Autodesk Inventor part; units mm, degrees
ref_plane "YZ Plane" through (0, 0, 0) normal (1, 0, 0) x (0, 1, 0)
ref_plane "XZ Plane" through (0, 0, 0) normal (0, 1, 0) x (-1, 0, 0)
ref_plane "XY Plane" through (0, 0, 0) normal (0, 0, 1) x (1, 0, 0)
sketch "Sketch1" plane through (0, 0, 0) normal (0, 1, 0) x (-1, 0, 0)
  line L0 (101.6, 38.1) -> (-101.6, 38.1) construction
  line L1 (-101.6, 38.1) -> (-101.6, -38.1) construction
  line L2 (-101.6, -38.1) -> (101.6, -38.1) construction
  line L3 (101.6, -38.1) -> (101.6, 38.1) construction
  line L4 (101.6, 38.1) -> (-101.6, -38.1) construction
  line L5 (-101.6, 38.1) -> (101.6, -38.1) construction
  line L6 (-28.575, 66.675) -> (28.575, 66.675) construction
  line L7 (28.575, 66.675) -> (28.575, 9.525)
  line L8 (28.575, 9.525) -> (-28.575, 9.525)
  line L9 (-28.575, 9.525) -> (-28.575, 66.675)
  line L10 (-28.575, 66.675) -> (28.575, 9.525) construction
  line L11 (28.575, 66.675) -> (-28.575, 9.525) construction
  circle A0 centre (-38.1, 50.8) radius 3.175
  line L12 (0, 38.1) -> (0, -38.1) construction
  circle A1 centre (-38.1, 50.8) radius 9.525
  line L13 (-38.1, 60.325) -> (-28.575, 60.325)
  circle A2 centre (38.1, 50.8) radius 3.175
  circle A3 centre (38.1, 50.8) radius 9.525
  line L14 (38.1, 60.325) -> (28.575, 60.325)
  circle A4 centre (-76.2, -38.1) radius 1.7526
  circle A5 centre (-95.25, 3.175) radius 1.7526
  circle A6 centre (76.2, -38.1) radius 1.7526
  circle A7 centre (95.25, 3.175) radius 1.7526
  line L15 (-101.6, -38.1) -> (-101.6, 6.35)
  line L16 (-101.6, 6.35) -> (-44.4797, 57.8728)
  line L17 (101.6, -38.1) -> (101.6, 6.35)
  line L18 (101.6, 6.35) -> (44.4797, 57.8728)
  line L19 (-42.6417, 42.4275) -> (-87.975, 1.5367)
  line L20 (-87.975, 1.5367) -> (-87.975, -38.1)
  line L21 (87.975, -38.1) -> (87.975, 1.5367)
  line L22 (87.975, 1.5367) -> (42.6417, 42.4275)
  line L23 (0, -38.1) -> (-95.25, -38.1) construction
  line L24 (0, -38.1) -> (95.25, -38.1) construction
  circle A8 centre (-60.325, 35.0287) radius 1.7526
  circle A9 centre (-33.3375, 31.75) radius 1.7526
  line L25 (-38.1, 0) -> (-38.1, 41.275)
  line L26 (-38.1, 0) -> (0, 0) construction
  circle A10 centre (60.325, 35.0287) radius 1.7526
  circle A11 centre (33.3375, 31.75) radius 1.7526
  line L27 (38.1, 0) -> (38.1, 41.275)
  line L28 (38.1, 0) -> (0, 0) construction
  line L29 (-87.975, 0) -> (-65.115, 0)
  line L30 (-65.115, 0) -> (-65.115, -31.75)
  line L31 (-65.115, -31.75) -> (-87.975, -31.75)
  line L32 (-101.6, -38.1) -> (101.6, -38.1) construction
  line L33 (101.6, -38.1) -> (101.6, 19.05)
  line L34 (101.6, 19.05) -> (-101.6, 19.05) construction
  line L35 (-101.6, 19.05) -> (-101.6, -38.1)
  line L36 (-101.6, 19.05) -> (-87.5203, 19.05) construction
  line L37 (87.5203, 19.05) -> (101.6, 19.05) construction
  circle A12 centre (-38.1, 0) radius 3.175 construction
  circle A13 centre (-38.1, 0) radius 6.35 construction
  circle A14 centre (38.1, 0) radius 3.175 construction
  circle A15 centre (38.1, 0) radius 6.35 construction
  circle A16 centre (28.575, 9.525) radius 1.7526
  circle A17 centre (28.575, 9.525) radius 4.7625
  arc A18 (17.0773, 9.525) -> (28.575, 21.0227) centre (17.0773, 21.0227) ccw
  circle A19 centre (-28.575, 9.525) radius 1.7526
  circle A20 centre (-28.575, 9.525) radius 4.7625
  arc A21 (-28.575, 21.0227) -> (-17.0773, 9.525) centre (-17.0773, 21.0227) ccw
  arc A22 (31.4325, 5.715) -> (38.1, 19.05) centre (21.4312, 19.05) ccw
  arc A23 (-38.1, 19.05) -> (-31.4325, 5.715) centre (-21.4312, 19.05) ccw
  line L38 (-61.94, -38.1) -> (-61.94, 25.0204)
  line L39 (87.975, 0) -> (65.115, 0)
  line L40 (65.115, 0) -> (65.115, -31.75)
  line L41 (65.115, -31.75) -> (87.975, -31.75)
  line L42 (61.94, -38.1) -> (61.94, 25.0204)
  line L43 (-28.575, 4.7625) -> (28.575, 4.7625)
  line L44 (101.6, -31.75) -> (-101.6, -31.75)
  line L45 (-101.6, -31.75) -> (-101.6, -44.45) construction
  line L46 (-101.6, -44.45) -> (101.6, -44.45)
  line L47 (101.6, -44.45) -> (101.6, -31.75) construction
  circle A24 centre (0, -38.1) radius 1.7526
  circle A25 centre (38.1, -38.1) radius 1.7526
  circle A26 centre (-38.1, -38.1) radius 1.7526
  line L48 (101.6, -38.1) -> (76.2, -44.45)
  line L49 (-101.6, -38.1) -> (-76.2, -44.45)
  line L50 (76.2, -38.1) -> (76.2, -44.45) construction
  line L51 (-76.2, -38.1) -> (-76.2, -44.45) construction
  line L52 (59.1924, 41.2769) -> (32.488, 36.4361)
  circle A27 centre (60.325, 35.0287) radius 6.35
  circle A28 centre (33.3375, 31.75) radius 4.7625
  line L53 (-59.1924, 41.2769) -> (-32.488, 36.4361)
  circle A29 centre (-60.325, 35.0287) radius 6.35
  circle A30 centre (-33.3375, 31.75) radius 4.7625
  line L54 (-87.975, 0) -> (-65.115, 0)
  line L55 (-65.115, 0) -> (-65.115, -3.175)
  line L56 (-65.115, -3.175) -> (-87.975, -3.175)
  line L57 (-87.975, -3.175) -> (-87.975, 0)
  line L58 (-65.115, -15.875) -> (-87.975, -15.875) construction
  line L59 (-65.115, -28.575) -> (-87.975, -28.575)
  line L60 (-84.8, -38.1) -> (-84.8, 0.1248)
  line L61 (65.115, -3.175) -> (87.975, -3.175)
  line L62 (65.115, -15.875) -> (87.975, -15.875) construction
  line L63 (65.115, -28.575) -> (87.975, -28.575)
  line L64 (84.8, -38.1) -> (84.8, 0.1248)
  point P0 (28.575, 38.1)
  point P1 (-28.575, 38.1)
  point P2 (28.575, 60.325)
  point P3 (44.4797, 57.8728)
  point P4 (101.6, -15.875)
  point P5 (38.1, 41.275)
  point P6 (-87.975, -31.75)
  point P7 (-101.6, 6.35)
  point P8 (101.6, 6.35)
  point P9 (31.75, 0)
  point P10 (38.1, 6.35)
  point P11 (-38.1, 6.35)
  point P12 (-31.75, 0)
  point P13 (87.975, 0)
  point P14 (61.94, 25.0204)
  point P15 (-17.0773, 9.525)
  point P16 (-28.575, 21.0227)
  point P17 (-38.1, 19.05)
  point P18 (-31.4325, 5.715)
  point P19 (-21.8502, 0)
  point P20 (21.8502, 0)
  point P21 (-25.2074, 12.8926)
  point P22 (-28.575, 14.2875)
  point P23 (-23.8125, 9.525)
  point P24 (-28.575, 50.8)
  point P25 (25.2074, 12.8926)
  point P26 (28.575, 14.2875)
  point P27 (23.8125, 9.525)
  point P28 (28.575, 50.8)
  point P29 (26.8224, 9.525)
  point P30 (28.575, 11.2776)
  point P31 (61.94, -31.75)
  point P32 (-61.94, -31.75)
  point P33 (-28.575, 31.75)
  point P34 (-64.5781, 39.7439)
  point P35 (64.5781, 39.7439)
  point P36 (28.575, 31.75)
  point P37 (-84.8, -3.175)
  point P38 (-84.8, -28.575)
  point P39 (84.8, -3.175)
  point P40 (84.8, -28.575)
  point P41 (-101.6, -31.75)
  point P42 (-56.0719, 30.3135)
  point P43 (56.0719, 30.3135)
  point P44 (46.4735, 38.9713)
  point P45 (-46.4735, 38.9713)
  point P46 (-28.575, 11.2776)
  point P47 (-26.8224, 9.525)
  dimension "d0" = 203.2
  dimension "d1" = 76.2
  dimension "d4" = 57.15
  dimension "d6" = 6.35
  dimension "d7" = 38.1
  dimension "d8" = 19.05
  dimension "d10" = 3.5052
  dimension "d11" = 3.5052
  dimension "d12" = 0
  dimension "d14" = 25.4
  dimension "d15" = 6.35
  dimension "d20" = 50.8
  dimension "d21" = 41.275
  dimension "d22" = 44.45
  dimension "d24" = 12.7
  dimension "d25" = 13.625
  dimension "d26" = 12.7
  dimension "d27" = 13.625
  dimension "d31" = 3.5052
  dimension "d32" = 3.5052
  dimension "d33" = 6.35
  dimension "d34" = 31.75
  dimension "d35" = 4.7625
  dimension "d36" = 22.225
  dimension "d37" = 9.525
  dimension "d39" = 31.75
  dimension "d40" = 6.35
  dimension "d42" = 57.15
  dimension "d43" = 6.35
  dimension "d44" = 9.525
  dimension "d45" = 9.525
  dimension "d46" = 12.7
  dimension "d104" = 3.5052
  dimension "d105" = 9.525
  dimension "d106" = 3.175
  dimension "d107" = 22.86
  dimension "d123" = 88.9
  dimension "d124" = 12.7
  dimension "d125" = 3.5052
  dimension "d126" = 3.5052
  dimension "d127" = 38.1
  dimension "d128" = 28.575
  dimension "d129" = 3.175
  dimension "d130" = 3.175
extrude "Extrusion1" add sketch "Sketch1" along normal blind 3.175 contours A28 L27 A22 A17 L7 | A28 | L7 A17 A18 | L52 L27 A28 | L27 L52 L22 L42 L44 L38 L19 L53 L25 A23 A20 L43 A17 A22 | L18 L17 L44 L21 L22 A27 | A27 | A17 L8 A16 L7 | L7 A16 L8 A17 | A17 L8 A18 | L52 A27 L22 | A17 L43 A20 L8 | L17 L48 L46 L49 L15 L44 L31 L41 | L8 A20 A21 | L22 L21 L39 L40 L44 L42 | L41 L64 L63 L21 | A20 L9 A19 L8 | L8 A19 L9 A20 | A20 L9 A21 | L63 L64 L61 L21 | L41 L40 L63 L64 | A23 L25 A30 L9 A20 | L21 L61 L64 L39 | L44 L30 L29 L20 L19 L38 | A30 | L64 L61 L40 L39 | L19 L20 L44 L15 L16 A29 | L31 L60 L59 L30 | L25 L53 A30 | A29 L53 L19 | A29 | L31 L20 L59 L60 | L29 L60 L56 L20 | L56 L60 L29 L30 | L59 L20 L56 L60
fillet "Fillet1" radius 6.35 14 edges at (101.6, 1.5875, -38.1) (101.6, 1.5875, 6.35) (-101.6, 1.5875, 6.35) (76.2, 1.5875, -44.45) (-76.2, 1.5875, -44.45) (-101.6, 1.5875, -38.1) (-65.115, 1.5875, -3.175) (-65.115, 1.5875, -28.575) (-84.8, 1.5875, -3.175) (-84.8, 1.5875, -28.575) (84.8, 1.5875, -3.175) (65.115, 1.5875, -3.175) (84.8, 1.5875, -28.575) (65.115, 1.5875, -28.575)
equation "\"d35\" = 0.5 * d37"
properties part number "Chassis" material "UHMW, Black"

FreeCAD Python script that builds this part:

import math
import FreeCAD as App
import Part
import Sketcher

V = App.Vector
Q = App.Units.Quantity


def edges_at(feature, points):
    """Names of the edges that pass closest to the given points."""
    edges = feature.Shape.Edges
    near = lambda p: min(range(len(edges)), key=lambda i: edges[i].distToShape(Part.Vertex(*p))[0])
    return sorted({f"Edge{near(p) + 1}" for p in points})


def add_polygon(sketch, points):
    """Adds a closed chain of lines whose ends are joined by coincident constraints."""
    first, n = sketch.GeometryCount, len(points)
    for a, b in zip(points, points[1:] + points[:1]):
        sketch.addGeometry(Part.LineSegment(App.Vector(*a, 0), App.Vector(*b, 0)), False)
    for i in range(n):
        sketch.addConstraint(Sketcher.Constraint("Coincident", first + i, 2, first + (i + 1) % n, 1))

doc = App.newDocument("Part")
body = doc.addObject("PartDesign::Body", "Body")

# Sketch on XZ plane
sketch1 = body.newObject("Sketcher::SketchObject", "Sketch")
sketch1.AttachmentSupport = (doc.getObject("XZ_Plane"), [""])
sketch1.MapMode = "FlatFace"
sketch1.addGeometry(Part.LineSegment(V(-28.6, 31.8, 0), V(-28.6, 21, 0)), False)  # 0
sketch1.addGeometry(Part.ArcOfCircle(Part.Circle(V(-17.1, 21, 0), V(0, 0, 1), 11.5), math.radians(180), math.radians(270)), False)  # 1
sketch1.addGeometry(Part.LineSegment(V(-17.1, 9.5, 0), V(17.1, 9.5, 0)), False)  # 2
sketch1.addGeometry(Part.ArcOfCircle(Part.Circle(V(17.1, 21, 0), V(0, 0, 1), 11.5), math.radians(-90), math.radians(0)), False)  # 3
sketch1.addGeometry(Part.LineSegment(V(28.6, 21, 0), V(28.6, 31.8, 0)), False)  # 4
sketch1.addGeometry(Part.ArcOfCircle(Part.Circle(V(33.3, 31.8, 0), V(0, 0, 1), 4.8), math.radians(100), math.radians(180)), False)  # 5
sketch1.addGeometry(Part.LineSegment(V(32.5, 36.4, 0), V(59.2, 41.3, 0)), False)  # 6
sketch1.addGeometry(Part.ArcOfCircle(Part.Circle(V(60.3, 35, 0), V(0, 0, 1), 6.3), math.radians(48), math.radians(100)), False)  # 7
sketch1.addGeometry(Part.LineSegment(V(64.6, 39.7, 0), V(101.6, 6.3, 0)), False)  # 8
sketch1.addGeometry(Part.LineSegment(V(101.6, 6.3, 0), V(101.6, -38.1, 0)), False)  # 9
sketch1.addGeometry(Part.LineSegment(V(101.6, -38.1, 0), V(76.2, -44.5, 0)), False)  # 10
sketch1.addGeometry(Part.LineSegment(V(76.2, -44.5, 0), V(-76.2, -44.5, 0)), False)  # 11
sketch1.addGeometry(Part.LineSegment(V(-76.2, -44.5, 0), V(-101.6, -38.1, 0)), False)  # 12
sketch1.addGeometry(Part.LineSegment(V(-101.6, -38.1, 0), V(-101.6, 6.3, 0)), False)  # 13
sketch1.addGeometry(Part.LineSegment(V(-101.6, 6.3, 0), V(-64.6, 39.7, 0)), False)  # 14
sketch1.addGeometry(Part.ArcOfCircle(Part.Circle(V(-60.3, 35, 0), V(0, 0, 1), 6.3), math.radians(80), math.radians(132)), False)  # 15
sketch1.addGeometry(Part.LineSegment(V(-59.2, 41.3, 0), V(-32.5, 36.4, 0)), False)  # 16
sketch1.addGeometry(Part.ArcOfCircle(Part.Circle(V(-33.3, 31.8, 0), V(0, 0, 1), 4.8), math.radians(0), math.radians(80)), False)  # 17
sketch1.addGeometry(Part.Circle(V(-33.3, 31.8, 0), V(0, 0, 1), 1.8), False)  # 18
sketch1.addGeometry(Part.Circle(V(-28.6, 9.5, 0), V(0, 0, 1), 1.8), False)  # 19
sketch1.addGeometry(Part.Circle(V(-95.2, 3.2, 0), V(0, 0, 1), 1.8), False)  # 20
add_polygon(sketch1, [(-65.1, -28.6), (-65.1, -3.2), (-84.8, -3.2), (-84.8, -28.6)])  # lines 21-24
sketch1.addGeometry(Part.Circle(V(-76.2, -38.1, 0), V(0, 0, 1), 1.8), False)  # 25
sketch1.addGeometry(Part.Circle(V(0, -38.1, 0), V(0, 0, 1), 1.8), False)  # 26
sketch1.addGeometry(Part.Circle(V(-38.1, -38.1, 0), V(0, 0, 1), 1.8), False)  # 27
sketch1.addGeometry(Part.Circle(V(76.2, -38.1, 0), V(0, 0, 1), 1.8), False)  # 28
sketch1.addGeometry(Part.Circle(V(38.1, -38.1, 0), V(0, 0, 1), 1.8), False)  # 29
add_polygon(sketch1, [(65.1, -3.2), (65.1, -28.6), (84.8, -28.6), (84.8, -3.2)])  # lines 30-33
sketch1.addGeometry(Part.Circle(V(95.2, 3.2, 0), V(0, 0, 1), 1.8), False)  # 34
sketch1.addGeometry(Part.Circle(V(28.6, 9.5, 0), V(0, 0, 1), 1.8), False)  # 35
sketch1.addGeometry(Part.Circle(V(-60.3, 35, 0), V(0, 0, 1), 1.8), False)  # 36
sketch1.addGeometry(Part.Circle(V(60.3, 35, 0), V(0, 0, 1), 1.8), False)  # 37
sketch1.addGeometry(Part.Circle(V(33.3, 31.8, 0), V(0, 0, 1), 1.8), False)  # 38
sketch1.addConstraint([
    Sketcher.Constraint("Tangent", 0, 2, 1, 1),
    Sketcher.Constraint("Tangent", 1, 2, 2, 1),
    Sketcher.Constraint("Tangent", 2, 2, 3, 1),
    Sketcher.Constraint("Tangent", 3, 2, 4, 1),
    Sketcher.Constraint("Tangent", 4, 2, 5, 2),
    Sketcher.Constraint("Tangent", 5, 1, 6, 1),
    Sketcher.Constraint("Tangent", 6, 2, 7, 2),
    Sketcher.Constraint("Tangent", 7, 1, 8, 1),
    Sketcher.Constraint("Coincident", 8, 2, 9, 1),
    Sketcher.Constraint("Coincident", 9, 2, 10, 1),
    Sketcher.Constraint("Coincident", 10, 2, 11, 1),
    Sketcher.Constraint("Coincident", 11, 2, 12, 1),
    Sketcher.Constraint("Coincident", 12, 2, 13, 1),
    Sketcher.Constraint("Coincident", 13, 2, 14, 1),
    Sketcher.Constraint("Tangent", 14, 2, 15, 2),
    Sketcher.Constraint("Tangent", 15, 1, 16, 1),
    Sketcher.Constraint("Tangent", 16, 2, 17, 2),
    Sketcher.Constraint("Tangent", 17, 1, 0, 1),
    Sketcher.Constraint("Vertical", 0),
    Sketcher.Constraint("Horizontal", 2),
    Sketcher.Constraint("Vertical", 4),
    Sketcher.Constraint("Vertical", 9),
    Sketcher.Constraint("Horizontal", 11),
    Sketcher.Constraint("Vertical", 13),
    Sketcher.Constraint("Vertical", 21),
    Sketcher.Constraint("Horizontal", 22),
    Sketcher.Constraint("Vertical", 23),
    Sketcher.Constraint("Horizontal", 24),
    Sketcher.Constraint("Vertical", 30),
    Sketcher.Constraint("Horizontal", 31),
    Sketcher.Constraint("Vertical", 32),
    Sketcher.Constraint("Horizontal", 33),
    Sketcher.Constraint("Coincident", 18, 3, 17, 3),
    Sketcher.Constraint("Coincident", 36, 3, 15, 3),
    Sketcher.Constraint("Coincident", 37, 3, 7, 3),
    Sketcher.Constraint("Coincident", 38, 3, 5, 3),
    Sketcher.Constraint("Equal", 1, 3),
    Sketcher.Constraint("Equal", 7, 15),
    Sketcher.Constraint("Equal", 5, 17),
    Sketcher.Constraint("Equal", 18, 19),
    Sketcher.Constraint("Equal", 19, 20),
    Sketcher.Constraint("Equal", 20, 25),
    Sketcher.Constraint("Equal", 25, 26),
    Sketcher.Constraint("Equal", 26, 27),
    Sketcher.Constraint("Equal", 27, 28),
    Sketcher.Constraint("Equal", 28, 29),
    Sketcher.Constraint("Equal", 29, 34),
    Sketcher.Constraint("Equal", 34, 35),
    Sketcher.Constraint("Equal", 35, 36),
    Sketcher.Constraint("Equal", 36, 37),
    Sketcher.Constraint("Equal", 37, 38),
    Sketcher.Constraint("Symmetric", 7, 3, 15, 3, -2),
    Sketcher.Constraint("Symmetric", 5, 3, 17, 3, -2),
    Sketcher.Constraint("Symmetric", 25, 3, 28, 3, -2),
    Sketcher.Constraint("Symmetric", 27, 3, 29, 3, -2),
    Sketcher.Constraint("Symmetric", 20, 3, 34, 3, -2),
    Sketcher.Constraint("Symmetric", 19, 3, 35, 3, -2),
    Sketcher.Constraint("Symmetric", 9, 2, 12, 2, -2),
    Sketcher.Constraint("Symmetric", 24, 2, 30, 2, -2),
    Sketcher.Constraint("Symmetric", 22, 2, 32, 2, -2),
    Sketcher.Constraint("PointOnObject", 26, 3, -2),
    Sketcher.Constraint("Horizontal", 25, 3, 26, 3),
    Sketcher.Constraint("Horizontal", 26, 3, 27, 3),
    Sketcher.Constraint("Horizontal", 35, 3, 1, 2),
    Sketcher.Constraint("Horizontal", 29, 3, 9, 2),
    Sketcher.Constraint("Horizontal", 8, 2, 13, 2),
    Sketcher.Constraint("Vertical", 19, 3, 0, 2),
    Sketcher.Constraint("Vertical", 28, 3, 10, 2),
    Sketcher.Constraint("Vertical", 25, 3, 11, 2),
    Sketcher.Constraint("DistanceY", 21, 1, 21, 2, Q("1 in")),
    Sketcher.Constraint("Radius", 7, Q("0.25 in")),
    Sketcher.Constraint("Diameter", 18, Q("0.138 in")),
    Sketcher.Constraint("DistanceX", 25, 3, -1, 1, Q("3 in")),
    Sketcher.Constraint("Radius", 5, Q("0.1875 in")),
    Sketcher.Constraint("DistanceX", 27, 3, 29, 3, Q("3 in")),
    Sketcher.Constraint("DistanceX", 28, 3, 8, 2, Q("1 in")),
    Sketcher.Constraint("DistanceY", 10, 2, 8, 2, Q("2 in")),
    Sketcher.Constraint("DistanceY", 9, 2, 9, 1, Q("1.75 in")),
    Sketcher.Constraint("DistanceY", 25, 3, -1, 1, Q("1.5 in")),
    Sketcher.Constraint("DistanceY", -1, 1, 5, 3, Q("1.25 in")),
    Sketcher.Constraint("DistanceX", 15, 3, 19, 3, Q("1.25 in")),
    Sketcher.Constraint("DistanceY", 20, 3, 19, 3, Q("0.25 in")),
    Sketcher.Constraint("DistanceX", 20, 3, 25, 3, Q("0.75 in")),
    Sketcher.Constraint("DistanceY", 21, 2, 20, 3, Q("0.25 in")),
    Sketcher.Constraint("DistanceX", 19, 3, -1, 1, Q("1.125 in")),
    Sketcher.Constraint("DistanceY", -1, 1, 19, 3, Q("0.375 in")),
    Sketcher.Constraint("DistanceX", 22, 2, 22, 1, Q("0.775 in")),
    Sketcher.Constraint("Angle", 8, Q("-42.0506 deg")),
    Sketcher.Constraint("Radius", 1, Q("11.4977 mm")),
    Sketcher.Constraint("DistanceX", 21, 2, -1, 1, Q("65.115 mm")),
])
pad1 = body.newObject("PartDesign::Pad", "Pad")
pad1.Profile = sketch1
pad1.Length = Q("0.125 in")
pad1.Reversed = True
doc.recompute()

fillet = body.newObject("PartDesign::Fillet", "Fillet")
fillet.Base = (pad1, edges_at(pad1, [
    (101.6, 1.587, -38.1),
    (101.6, 1.587, 6.35),
    (-101.6, 1.587, 6.35),
    (76.2, 1.587, -44.45),
    (-76.2, 1.587, -44.45),
    (-101.6, 1.587, -38.1),
    (-65.115, 1.587, -3.175),
    (-65.115, 1.587, -28.575),
    (-84.8, 1.587, -3.175),
    (-84.8, 1.587, -28.575),
    (84.8, 1.587, -3.175),
    (65.115, 1.587, -3.175),
    (84.8, 1.587, -28.575),
    (65.115, 1.587, -28.575),
]))
fillet.Radius = Q("0.25 in")

doc.recompute()
